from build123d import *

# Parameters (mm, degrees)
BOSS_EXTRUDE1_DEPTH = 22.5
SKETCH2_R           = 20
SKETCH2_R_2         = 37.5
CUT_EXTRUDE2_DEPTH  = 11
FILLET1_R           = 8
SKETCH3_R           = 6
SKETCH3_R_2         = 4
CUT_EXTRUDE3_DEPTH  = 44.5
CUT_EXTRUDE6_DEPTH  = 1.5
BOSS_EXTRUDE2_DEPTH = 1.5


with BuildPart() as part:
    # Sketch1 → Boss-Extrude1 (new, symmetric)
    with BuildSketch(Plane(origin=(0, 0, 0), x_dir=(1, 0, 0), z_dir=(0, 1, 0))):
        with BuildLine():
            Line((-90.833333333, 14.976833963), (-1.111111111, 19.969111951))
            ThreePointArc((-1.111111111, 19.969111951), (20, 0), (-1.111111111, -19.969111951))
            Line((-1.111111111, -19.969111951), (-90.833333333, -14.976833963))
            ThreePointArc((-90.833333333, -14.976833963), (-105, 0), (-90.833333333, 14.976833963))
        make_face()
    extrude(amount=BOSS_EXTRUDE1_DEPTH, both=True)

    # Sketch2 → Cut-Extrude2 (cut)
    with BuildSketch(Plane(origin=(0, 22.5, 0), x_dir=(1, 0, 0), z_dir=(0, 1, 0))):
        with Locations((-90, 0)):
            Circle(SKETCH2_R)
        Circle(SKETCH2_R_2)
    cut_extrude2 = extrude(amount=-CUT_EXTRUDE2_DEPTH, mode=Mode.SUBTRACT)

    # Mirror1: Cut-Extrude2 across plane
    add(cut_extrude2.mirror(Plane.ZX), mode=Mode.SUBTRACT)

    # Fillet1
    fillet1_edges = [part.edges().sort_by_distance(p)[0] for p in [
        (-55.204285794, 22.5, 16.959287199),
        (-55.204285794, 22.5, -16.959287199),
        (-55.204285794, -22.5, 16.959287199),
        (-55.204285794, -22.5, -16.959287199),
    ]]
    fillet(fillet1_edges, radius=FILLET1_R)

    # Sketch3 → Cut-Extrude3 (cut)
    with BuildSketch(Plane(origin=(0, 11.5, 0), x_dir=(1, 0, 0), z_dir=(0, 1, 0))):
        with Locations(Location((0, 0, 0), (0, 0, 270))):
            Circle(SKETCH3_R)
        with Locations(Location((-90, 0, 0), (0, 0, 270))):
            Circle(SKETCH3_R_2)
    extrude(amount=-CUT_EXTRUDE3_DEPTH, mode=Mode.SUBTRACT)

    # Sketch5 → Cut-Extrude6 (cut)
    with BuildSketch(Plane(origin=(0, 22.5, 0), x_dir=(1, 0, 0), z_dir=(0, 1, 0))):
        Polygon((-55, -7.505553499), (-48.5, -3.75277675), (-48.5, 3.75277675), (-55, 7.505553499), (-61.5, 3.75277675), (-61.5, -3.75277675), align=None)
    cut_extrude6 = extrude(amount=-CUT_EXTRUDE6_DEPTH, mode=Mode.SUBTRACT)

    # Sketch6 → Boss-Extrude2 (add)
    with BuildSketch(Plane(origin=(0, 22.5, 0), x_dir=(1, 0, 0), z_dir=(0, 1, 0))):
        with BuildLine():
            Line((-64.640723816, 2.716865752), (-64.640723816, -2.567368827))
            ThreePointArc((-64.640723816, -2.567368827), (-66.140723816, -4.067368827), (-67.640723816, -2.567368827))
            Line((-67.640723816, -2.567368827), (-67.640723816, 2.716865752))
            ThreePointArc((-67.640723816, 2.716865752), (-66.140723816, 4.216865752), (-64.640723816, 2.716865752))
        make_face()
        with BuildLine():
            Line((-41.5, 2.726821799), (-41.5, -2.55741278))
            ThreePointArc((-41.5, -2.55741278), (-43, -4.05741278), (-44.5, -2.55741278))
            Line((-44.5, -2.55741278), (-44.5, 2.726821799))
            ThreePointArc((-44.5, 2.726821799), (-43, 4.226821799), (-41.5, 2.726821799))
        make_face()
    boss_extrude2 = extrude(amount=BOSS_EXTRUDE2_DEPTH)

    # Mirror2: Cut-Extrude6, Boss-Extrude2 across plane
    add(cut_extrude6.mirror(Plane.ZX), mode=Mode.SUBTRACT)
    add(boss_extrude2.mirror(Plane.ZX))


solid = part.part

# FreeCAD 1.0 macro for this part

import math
import FreeCAD as App
import Part
import Sketcher

V = App.Vector
Q = App.Units.Quantity


def edges_at(feature, points):
    """Names of the edges that pass closest to the given points."""
    edges = feature.Shape.Edges
    near = lambda p: min(range(len(edges)), key=lambda i: edges[i].distToShape(Part.Vertex(*p))[0])
    return sorted({f"Edge{near(p) + 1}" for p in points})


def add_polygon(sketch, points):
    """Adds a closed chain of lines whose ends are joined by coincident constraints."""
    first, n = sketch.GeometryCount, len(points)
    for a, b in zip(points, points[1:] + points[:1]):
        sketch.addGeometry(Part.LineSegment(App.Vector(*a, 0), App.Vector(*b, 0)), False)
    for i in range(n):
        sketch.addConstraint(Sketcher.Constraint("Coincident", first + i, 2, first + (i + 1) % n, 1))

doc = App.newDocument("Part")
params = doc.addObject("Spreadsheet::Sheet", "Params")
for row, (alias, value) in enumerate([
    ("sketch1_radius", "15 mm"),
    ("sketch1_radius2", "20 mm"),
    ("pad1_length", "45 mm"),
    ("sketch2_diameter", "40 mm"),
    ("sketch2_diameter2", "75 mm"),
    ("pocket1_length", "11 mm"),
    ("fillet_radius", "8 mm"),
    ("sketch3_diameter", "12 mm"),
    ("sketch3_diameter2", "8 mm"),
    ("pocket2_length", "44.5 mm"),
    ("pocket3_length", "1.5 mm"),
    ("sketch5_radius", "1.5 mm"),
    ("pad2_length", "1.5 mm"),
], start=1):
    params.set(f"A{row}", alias)
    params.set(f"B{row}", "=" + value)
    params.setAlias(f"B{row}", alias)

body = doc.addObject("PartDesign::Body", "Body")

sketch1 = body.newObject("Sketcher::SketchObject", "Sketch")
sketch1.AttachmentSupport = (doc.getObject("XZ_Plane"), [""])
sketch1.MapMode = "FlatFace"
sketch1.addGeometry([
    Part.LineSegment(V(-1, -20, 0), V(-91, -15, 0)),
    Part.ArcOfCircle(Part.Circle(V(-90, 0, 0), V(0, 0, 1), 15), math.radians(93), math.radians(267)),
    Part.LineSegment(V(-91, 15, 0), V(-1, 20, 0)),
    Part.ArcOfCircle(Part.Circle(V(0, 0, 0), V(0, 0, 1), 20), math.radians(-93), math.radians(93)),
], False)
sketch1.addConstraint([
    Sketcher.Constraint("Tangent", 0, 2, 1, 2),
    Sketcher.Constraint("Tangent", 1, 1, 2, 1),
    Sketcher.Constraint("Tangent", 2, 2, 3, 2),
    Sketcher.Constraint("Tangent", 3, 1, 0, 1),
    Sketcher.Constraint("Coincident", 3, 3, -1, 1),
    Sketcher.Constraint("PointOnObject", 1, 3, -1),
    Sketcher.Constraint("Radius", 1, Q("15 mm")),
    Sketcher.Constraint("Radius", 3, Q("20 mm")),
    Sketcher.Constraint("DistanceX", 1, 3, -1, 1, Q("90 mm")),
])
sketch1.setExpression("Constraints[6]", "Params.sketch1_radius")
sketch1.setExpression("Constraints[7]", "Params.sketch1_radius2")
pad1 = body.newObject("PartDesign::Pad", "Pad")
pad1.Profile = sketch1
pad1.setExpression("Length", "Params.pad1_length")
pad1.Midplane = True

sketch2 = body.newObject("Sketcher::SketchObject", "Sketch001")
sketch2.AttachmentSupport = (doc.getObject("XZ_Plane"), [""])
sketch2.MapMode = "FlatFace"
sketch2.AttachmentOffset = App.Placement(V(0, 0, -22.5), App.Rotation())
sketch2.addGeometry([
    Part.Circle(V(-90, 0, 0), V(0, 0, 1), 20),
    Part.Circle(V(0, 0, 0), V(0, 0, 1), 38),
], False)
sketch2.addConstraint([
    Sketcher.Constraint("Coincident", 1, 3, -1, 1),
    Sketcher.Constraint("PointOnObject", 0, 3, -1),
    Sketcher.Constraint("Diameter", 0, Q("40 mm")),
    Sketcher.Constraint("Diameter", 1, Q("75 mm")),
    Sketcher.Constraint("DistanceX", 0, 3, -1, 1, Q("90 mm")),
])
sketch2.setExpression("Constraints[2]", "Params.sketch2_diameter")
sketch2.setExpression("Constraints[3]", "Params.sketch2_diameter2")
pocket1 = body.newObject("PartDesign::Pocket", "Pocket")
pocket1.Profile = sketch2
pocket1.setExpression("Length", "Params.pocket1_length")
pocket1.Reversed = True
doc.recompute()

mirrored = body.newObject("PartDesign::Mirrored", "Mirrored")
mirrored.Originals = [pocket1]
mirrored.MirrorPlane = (doc.getObject("XZ_Plane"), [""])
body.Tip = mirrored
doc.recompute()

fillet = body.newObject("PartDesign::Fillet", "Fillet")
fillet.Base = (mirrored, edges_at(mirrored, [
    (-55.204, 22.5, 16.959),
    (-55.204, 22.5, -16.959),
    (-55.204, -22.5, 16.959),
    (-55.204, -22.5, -16.959),
]))
fillet.setExpression("Radius", "Params.fillet_radius")

sketch3 = body.newObject("Sketcher::SketchObject", "Sketch002")
sketch3.AttachmentSupport = (doc.getObject("XZ_Plane"), [""])
sketch3.MapMode = "FlatFace"
sketch3.AttachmentOffset = App.Placement(V(0, 0, -11.5), App.Rotation())
sketch3.addGeometry([
    Part.Circle(V(0, 0, 0), V(0, 0, 1), 6),
    Part.Circle(V(-90, 0, 0), V(0, 0, 1), 4),
], False)
sketch3.addConstraint([
    Sketcher.Constraint("Coincident", 0, 3, -1, 1),
    Sketcher.Constraint("PointOnObject", 1, 3, -1),
    Sketcher.Constraint("Diameter", 0, Q("12 mm")),
    Sketcher.Constraint("Diameter", 1, Q("8 mm")),
    Sketcher.Constraint("DistanceX", 1, 3, -1, 1, Q("90 mm")),
])
sketch3.setExpression("Constraints[2]", "Params.sketch3_diameter")
sketch3.setExpression("Constraints[3]", "Params.sketch3_diameter2")
pocket2 = body.newObject("PartDesign::Pocket", "Pocket001")
pocket2.Profile = sketch3
pocket2.setExpression("Length", "Params.pocket2_length")
pocket2.Reversed = True

sketch4 = body.newObject("Sketcher::SketchObject", "Sketch003")
sketch4.AttachmentSupport = (doc.getObject("XZ_Plane"), [""])
sketch4.MapMode = "FlatFace"
sketch4.AttachmentOffset = App.Placement(V(0, 0, -22.5), App.Rotation())
add_polygon(sketch4, [(-55, 8), (-48, 4), (-48, -4), (-55, -8), (-62, -4), (-62, 4)])
sketch4.addConstraint([
    Sketcher.Constraint("Vertical", 1),
    Sketcher.Constraint("Vertical", 4),
    Sketcher.Constraint("Symmetric", 2, 2, 5, 2, -1),
    Sketcher.Constraint("Parallel", 0, 3),
    Sketcher.Constraint("Parallel", 2, 5),
    Sketcher.Constraint("Horizontal", 1, 2, 3, 2),
    Sketcher.Constraint("Horizontal", 0, 2, 4, 2),
    Sketcher.Constraint("Angle", 0, Q("-30 deg")),
    Sketcher.Constraint("DistanceX", 2, 2, -1, 1, Q("55 mm")),
    Sketcher.Constraint("DistanceX", 3, 2, 1, 2, Q("13 mm")),
    Sketcher.Constraint("DistanceY", 1, 2, 1, 1, Q("7.505554 mm")),
])
pocket3 = body.newObject("PartDesign::Pocket", "Pocket002")
pocket3.Profile = sketch4
pocket3.setExpression("Length", "Params.pocket3_length")
pocket3.Reversed = True

sketch5 = body.newObject("Sketcher::SketchObject", "Sketch004")
sketch5.AttachmentSupport = (doc.getObject("XZ_Plane"), [""])
sketch5.MapMode = "FlatFace"
sketch5.AttachmentOffset = App.Placement(V(0, 0, -22.5), App.Rotation())
sketch5.addGeometry([
    Part.LineSegment(V(-64.6, 2.6, 0), V(-64.6, -2.7, 0)),
    Part.ArcOfCircle(Part.Circle(V(-66.1, -2.7, 0), V(0, 0, 1), 1.5), math.radians(180), math.radians(360)),
    Part.LineSegment(V(-67.6, -2.7, 0), V(-67.6, 2.6, 0)),
    Part.ArcOfCircle(Part.Circle(V(-66.1, 2.6, 0), V(0, 0, 1), 1.5), math.radians(0), math.radians(180)),
    Part.LineSegment(V(-41.5, 2.6, 0), V(-41.5, -2.7, 0)),
    Part.ArcOfCircle(Part.Circle(V(-43, -2.7, 0), V(0, 0, 1), 1.5), math.radians(180), math.radians(360)),
    Part.LineSegment(V(-44.5, -2.7, 0), V(-44.5, 2.6, 0)),
    Part.ArcOfCircle(Part.Circle(V(-43, 2.6, 0), V(0, 0, 1), 1.5), math.radians(0), math.radians(180)),
], False)
sketch5.addConstraint([
    Sketcher.Constraint("Tangent", 0, 2, 1, 2),
    Sketcher.Constraint("Tangent", 1, 1, 2, 1),
    Sketcher.Constraint("Tangent", 2, 2, 3, 2),
    Sketcher.Constraint("Tangent", 3, 1, 0, 1),
    Sketcher.Constraint("Tangent", 4, 2, 5, 2),
    Sketcher.Constraint("Tangent", 5, 1, 6, 1),
    Sketcher.Constraint("Tangent", 6, 2, 7, 2),
    Sketcher.Constraint("Tangent", 7, 1, 4, 1),
    Sketcher.Constraint("Vertical", 0),
    Sketcher.Constraint("Vertical", 2),
    Sketcher.Constraint("Vertical", 4),
    Sketcher.Constraint("Vertical", 6),
    Sketcher.Constraint("Equal", 3, 5),
    Sketcher.Constraint("Equal", 2, 4),
    Sketcher.Constraint("Radius", 1, Q("1.5 mm")),
    Sketcher.Constraint("DistanceX", 5, 3, -1, 1, Q("43 mm")),
    Sketcher.Constraint("DistanceY", 0, 2, 0, 1, Q("5.284235 mm")),
    Sketcher.Constraint("DistanceY", -1, 1, 3, 3, Q("2.567369 mm")),
    Sketcher.Constraint("DistanceY", 5, 3, -1, 1, Q("2.726822 mm")),
    Sketcher.Constraint("DistanceX", 1, 3, -1, 1, Q("66.140724 mm")),
])
sketch5.setExpression("Constraints[14]", "Params.sketch5_radius")
pad2 = body.newObject("PartDesign::Pad", "Pad001")
pad2.Profile = sketch5
pad2.setExpression("Length", "Params.pad2_length")
pad2.Reversed = True
doc.recompute()

mirrored2 = body.newObject("PartDesign::Mirrored", "Mirrored001")
mirrored2.Originals = [pocket3, pad2]
mirrored2.MirrorPlane = (doc.getObject("XZ_Plane"), [""])
body.Tip = mirrored2

doc.recompute()
